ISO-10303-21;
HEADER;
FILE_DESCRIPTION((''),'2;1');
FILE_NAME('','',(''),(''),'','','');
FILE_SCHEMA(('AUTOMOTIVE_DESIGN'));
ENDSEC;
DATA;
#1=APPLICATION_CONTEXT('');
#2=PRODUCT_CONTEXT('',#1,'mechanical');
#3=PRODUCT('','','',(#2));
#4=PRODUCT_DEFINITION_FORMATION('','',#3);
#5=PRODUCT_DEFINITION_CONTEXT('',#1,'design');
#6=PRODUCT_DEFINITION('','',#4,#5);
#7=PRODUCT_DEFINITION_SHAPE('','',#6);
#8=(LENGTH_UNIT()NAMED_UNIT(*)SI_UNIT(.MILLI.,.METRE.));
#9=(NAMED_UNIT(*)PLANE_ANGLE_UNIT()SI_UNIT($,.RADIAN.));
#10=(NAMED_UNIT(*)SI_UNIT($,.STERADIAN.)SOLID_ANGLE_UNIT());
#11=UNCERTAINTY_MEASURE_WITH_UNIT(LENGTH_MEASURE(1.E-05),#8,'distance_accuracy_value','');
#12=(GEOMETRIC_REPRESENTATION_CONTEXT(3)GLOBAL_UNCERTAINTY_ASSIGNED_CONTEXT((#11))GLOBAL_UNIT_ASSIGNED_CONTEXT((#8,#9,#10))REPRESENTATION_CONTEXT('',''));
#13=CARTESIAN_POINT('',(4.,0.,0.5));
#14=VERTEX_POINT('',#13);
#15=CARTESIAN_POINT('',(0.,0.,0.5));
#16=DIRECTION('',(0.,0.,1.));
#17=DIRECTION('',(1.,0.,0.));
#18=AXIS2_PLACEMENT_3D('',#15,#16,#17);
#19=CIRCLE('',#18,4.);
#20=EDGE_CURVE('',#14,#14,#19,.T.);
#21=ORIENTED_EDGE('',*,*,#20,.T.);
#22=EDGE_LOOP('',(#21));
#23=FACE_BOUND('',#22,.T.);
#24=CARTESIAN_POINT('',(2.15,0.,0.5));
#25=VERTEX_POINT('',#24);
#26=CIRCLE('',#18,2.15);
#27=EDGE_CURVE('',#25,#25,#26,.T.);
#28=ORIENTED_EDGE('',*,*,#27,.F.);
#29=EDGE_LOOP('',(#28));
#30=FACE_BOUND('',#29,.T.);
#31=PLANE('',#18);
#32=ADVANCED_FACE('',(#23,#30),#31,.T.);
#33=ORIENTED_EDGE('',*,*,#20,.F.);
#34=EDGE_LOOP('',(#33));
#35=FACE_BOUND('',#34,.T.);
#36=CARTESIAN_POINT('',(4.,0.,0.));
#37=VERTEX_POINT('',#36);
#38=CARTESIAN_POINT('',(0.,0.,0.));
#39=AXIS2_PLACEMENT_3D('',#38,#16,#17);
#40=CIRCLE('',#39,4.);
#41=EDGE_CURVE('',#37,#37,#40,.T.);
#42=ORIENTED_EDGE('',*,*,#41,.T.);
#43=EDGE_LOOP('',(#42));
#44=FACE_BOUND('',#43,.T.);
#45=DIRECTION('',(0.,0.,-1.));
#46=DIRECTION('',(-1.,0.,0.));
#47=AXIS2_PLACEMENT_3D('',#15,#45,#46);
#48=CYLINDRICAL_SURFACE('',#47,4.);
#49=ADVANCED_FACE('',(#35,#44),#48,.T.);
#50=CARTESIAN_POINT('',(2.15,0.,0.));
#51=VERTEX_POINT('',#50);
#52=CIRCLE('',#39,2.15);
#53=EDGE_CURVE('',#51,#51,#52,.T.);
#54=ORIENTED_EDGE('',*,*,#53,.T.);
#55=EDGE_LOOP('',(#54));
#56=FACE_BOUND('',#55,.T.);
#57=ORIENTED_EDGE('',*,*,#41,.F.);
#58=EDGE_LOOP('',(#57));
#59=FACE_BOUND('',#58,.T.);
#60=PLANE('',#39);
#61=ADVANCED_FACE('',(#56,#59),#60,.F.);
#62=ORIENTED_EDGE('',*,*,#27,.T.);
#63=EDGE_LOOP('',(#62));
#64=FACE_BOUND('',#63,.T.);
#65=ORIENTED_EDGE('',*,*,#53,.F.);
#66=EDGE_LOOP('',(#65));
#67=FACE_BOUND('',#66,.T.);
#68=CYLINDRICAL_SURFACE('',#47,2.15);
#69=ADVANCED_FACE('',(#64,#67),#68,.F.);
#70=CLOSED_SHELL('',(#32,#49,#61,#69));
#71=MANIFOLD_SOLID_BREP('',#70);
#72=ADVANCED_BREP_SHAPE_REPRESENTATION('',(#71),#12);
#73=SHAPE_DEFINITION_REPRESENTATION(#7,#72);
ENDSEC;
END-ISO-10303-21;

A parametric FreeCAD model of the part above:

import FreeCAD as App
import Part
import Sketcher

doc = App.newDocument("Part")
body = doc.addObject("PartDesign::Body", "Body")

# Sketch on XY plane
sketch1 = body.newObject("Sketcher::SketchObject", "Sketch")
sketch1.AttachmentSupport = (doc.getObject("XY_Plane"), [""])
sketch1.MapMode = "FlatFace"
sketch1.addGeometry([
    Part.Circle(App.Vector(0, 0, 0), App.Vector(0, 0, 1), 4),
    Part.Circle(App.Vector(0, 0, 0), App.Vector(0, 0, 1), 2.1),
], False)
sketch1.addConstraint([
    Sketcher.Constraint("Coincident", 0, 3, -1, 1),
    Sketcher.Constraint("Coincident", 1, 3, -1, 1),
    Sketcher.Constraint("Diameter", 0, 8.0),
    Sketcher.Constraint("Diameter", 1, 4.3),
])
pad1 = body.newObject("PartDesign::Pad", "Pad")
pad1.Profile = sketch1
pad1.Length = 0.5

doc.recompute()
